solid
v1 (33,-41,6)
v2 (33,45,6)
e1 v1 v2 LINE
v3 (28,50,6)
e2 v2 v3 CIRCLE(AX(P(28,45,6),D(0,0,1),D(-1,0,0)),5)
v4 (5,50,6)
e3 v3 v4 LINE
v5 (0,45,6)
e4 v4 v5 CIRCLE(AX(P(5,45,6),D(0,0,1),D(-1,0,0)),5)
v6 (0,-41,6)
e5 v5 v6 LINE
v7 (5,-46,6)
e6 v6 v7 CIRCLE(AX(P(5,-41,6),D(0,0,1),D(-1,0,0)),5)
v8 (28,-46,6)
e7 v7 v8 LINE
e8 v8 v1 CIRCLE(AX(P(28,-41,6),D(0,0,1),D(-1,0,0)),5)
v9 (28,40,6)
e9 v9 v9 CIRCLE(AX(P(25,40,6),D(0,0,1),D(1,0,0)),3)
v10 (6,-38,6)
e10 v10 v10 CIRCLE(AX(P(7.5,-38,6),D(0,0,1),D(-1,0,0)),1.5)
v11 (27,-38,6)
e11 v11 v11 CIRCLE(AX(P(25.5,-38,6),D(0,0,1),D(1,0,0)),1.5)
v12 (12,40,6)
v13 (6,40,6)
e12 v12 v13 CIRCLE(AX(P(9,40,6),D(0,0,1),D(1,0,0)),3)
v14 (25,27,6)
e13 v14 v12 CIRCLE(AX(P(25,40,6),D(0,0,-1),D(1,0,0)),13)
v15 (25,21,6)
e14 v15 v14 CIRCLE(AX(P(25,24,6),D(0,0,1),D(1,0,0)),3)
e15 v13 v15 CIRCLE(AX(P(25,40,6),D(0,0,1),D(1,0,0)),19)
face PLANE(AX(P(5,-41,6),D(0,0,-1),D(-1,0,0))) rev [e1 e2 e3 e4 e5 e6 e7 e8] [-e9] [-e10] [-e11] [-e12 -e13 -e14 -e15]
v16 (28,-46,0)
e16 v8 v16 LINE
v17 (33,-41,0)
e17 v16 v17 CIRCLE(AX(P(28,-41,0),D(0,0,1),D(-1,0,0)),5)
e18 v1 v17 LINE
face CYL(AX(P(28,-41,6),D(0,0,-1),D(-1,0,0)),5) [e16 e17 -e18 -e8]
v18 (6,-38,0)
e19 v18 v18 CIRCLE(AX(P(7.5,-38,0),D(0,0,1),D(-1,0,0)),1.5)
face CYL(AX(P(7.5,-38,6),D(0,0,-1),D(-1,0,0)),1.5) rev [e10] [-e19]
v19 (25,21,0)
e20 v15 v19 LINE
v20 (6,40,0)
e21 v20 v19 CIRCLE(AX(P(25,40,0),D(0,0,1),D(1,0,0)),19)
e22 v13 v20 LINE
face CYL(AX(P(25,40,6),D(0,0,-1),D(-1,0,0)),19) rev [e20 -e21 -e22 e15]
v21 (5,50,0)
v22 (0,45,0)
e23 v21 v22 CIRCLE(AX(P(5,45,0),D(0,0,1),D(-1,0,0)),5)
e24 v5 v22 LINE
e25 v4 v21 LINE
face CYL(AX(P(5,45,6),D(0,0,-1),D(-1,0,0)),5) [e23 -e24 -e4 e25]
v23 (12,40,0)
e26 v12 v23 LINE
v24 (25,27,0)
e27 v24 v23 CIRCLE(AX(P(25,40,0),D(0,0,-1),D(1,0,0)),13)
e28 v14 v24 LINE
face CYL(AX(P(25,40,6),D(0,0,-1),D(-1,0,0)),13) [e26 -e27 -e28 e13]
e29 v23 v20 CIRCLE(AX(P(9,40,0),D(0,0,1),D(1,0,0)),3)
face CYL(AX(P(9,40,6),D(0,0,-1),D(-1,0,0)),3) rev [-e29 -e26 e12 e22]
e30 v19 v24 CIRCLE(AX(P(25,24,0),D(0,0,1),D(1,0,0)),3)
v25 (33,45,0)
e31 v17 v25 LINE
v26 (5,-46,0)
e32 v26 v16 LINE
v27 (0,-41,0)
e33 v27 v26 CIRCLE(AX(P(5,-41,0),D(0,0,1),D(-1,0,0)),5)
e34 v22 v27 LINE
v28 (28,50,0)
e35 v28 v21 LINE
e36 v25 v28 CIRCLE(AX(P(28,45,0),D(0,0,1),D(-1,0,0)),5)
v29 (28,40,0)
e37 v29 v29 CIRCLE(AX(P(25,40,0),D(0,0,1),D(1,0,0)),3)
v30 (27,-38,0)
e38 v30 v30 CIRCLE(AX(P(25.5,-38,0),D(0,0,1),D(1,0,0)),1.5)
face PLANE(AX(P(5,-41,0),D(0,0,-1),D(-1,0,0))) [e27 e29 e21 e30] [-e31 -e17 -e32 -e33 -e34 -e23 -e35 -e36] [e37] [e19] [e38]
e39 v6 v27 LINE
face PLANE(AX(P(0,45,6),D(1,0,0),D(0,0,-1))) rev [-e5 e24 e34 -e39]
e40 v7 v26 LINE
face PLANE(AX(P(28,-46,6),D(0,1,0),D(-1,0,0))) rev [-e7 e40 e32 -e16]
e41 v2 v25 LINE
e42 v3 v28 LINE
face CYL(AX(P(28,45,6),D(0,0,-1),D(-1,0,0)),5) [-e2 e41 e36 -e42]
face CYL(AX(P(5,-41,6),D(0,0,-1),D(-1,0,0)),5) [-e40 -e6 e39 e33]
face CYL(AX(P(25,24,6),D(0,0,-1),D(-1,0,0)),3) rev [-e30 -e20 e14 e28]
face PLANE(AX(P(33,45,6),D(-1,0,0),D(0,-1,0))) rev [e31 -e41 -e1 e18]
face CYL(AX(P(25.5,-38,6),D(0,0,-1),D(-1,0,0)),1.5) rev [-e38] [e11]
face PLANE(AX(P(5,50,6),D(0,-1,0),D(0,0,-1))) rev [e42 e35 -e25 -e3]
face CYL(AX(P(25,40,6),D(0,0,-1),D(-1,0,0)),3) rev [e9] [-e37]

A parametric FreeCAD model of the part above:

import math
import FreeCAD as App
import Part
import Sketcher
from FreeCAD import Vector
Q = App.Units.Quantity

doc = App.newDocument("Part")
params = doc.addObject("Spreadsheet::Sheet", "Params")
for row, (alias, value) in enumerate([
    ("sketch1_diameter", "3 mm"),
    ("sketch1_diameter2", "6 mm"),
    ("sketch1_radius", "5 mm"),
    ("sketch1_radius2", "13 mm"),
    ("sketch1_width", "23 mm"),
    ("pad1_length", "6 mm"),
], start=1):
    params.set(f"A{row}", alias)
    params.set(f"B{row}", "=" + value)
    params.setAlias(f"B{row}", alias)

body = doc.addObject("PartDesign::Body", "Body")

sketch1 = doc.addObject("Sketcher::SketchObject", "Sketch")
body.addObject(sketch1)
sketch1.AttachmentSupport = (doc.XY_Plane, [""])
sketch1.MapMode = "FlatFace"
sketch1.addGeometry(Part.LineSegment(Vector(28, 50, 0), Vector(5, 50, 0)), False)
sketch1.addGeometry(Part.ArcOfCircle(Part.Circle(Vector(5, 45, 0), Vector(0, 0, 1), 5), math.radians(90), math.radians(180)), False)
sketch1.addGeometry(Part.LineSegment(Vector(0, 45, 0), Vector(0, -41, 0)), False)
sketch1.addGeometry(Part.ArcOfCircle(Part.Circle(Vector(5, -41, 0), Vector(0, 0, 1), 5), math.radians(180), math.radians(270)), False)
sketch1.addGeometry(Part.LineSegment(Vector(5, -46, 0), Vector(28, -46, 0)), False)
sketch1.addGeometry(Part.ArcOfCircle(Part.Circle(Vector(28, -41, 0), Vector(0, 0, 1), 5), math.radians(-90), math.radians(0)), False)
sketch1.addGeometry(Part.LineSegment(Vector(33, -41, 0), Vector(33, 45, 0)), False)
sketch1.addGeometry(Part.ArcOfCircle(Part.Circle(Vector(28, 45, 0), Vector(0, 0, 1), 5), math.radians(0), math.radians(90)), False)
sketch1.addGeometry(Part.Circle(Vector(25.5, -38, 0), Vector(0, 0, 1), 1.5), False)
sketch1.addGeometry(Part.Circle(Vector(7.5, -38, 0), Vector(0, 0, 1), 1.5), False)
sketch1.addGeometry(Part.Circle(Vector(25, 40, 0), Vector(0, 0, 1), 3), False)
sketch1.addGeometry(Part.ArcOfCircle(Part.Circle(Vector(9, 40, 0), Vector(0, 0, 1), 3), math.radians(0), math.radians(180)), False)
sketch1.addGeometry(Part.ArcOfCircle(Part.Circle(Vector(25, 40, 0), Vector(0, 0, 1), 13), math.radians(-180), math.radians(-90)), False)
sketch1.addGeometry(Part.ArcOfCircle(Part.Circle(Vector(25, 24, 0), Vector(0, 0, 1), 3), math.radians(-90), math.radians(90)), False)
sketch1.addGeometry(Part.ArcOfCircle(Part.Circle(Vector(25, 40, 0), Vector(0, 0, 1), 19), math.radians(180), math.radians(270)), False)
sketch1.addConstraint(Sketcher.Constraint("Tangent", 0, 2, 1, 1))
sketch1.addConstraint(Sketcher.Constraint("Tangent", 1, 2, 2, 1))
sketch1.addConstraint(Sketcher.Constraint("Tangent", 2, 2, 3, 1))
sketch1.addConstraint(Sketcher.Constraint("Tangent", 3, 2, 4, 1))
sketch1.addConstraint(Sketcher.Constraint("Tangent", 4, 2, 5, 1))
sketch1.addConstraint(Sketcher.Constraint("Tangent", 5, 2, 6, 1))
sketch1.addConstraint(Sketcher.Constraint("Tangent", 6, 2, 7, 1))
sketch1.addConstraint(Sketcher.Constraint("Tangent", 7, 2, 0, 1))
sketch1.addConstraint(Sketcher.Constraint("Tangent", 11, 1, 12, 1))
sketch1.addConstraint(Sketcher.Constraint("Tangent", 12, 2, 13, 2))
sketch1.addConstraint(Sketcher.Constraint("Tangent", 13, 1, 14, 2))
sketch1.addConstraint(Sketcher.Constraint("Tangent", 14, 1, 11, 2))
sketch1.addConstraint(Sketcher.Constraint("Horizontal", 0))
sketch1.addConstraint(Sketcher.Constraint("Vertical", 2))
sketch1.addConstraint(Sketcher.Constraint("Horizontal", 4))
sketch1.addConstraint(Sketcher.Constraint("Vertical", 6))
sketch1.addConstraint(Sketcher.Constraint("Coincident", 12, 3, 10, 3))
sketch1.addConstraint(Sketcher.Constraint("Coincident", 14, 3, 10, 3))
sketch1.addConstraint(Sketcher.Constraint("Equal", 1, 3))
sketch1.addConstraint(Sketcher.Constraint("Equal", 3, 5))
sketch1.addConstraint(Sketcher.Constraint("Equal", 5, 7))
sketch1.addConstraint(Sketcher.Constraint("Equal", 8, 9))
sketch1.addConstraint(Sketcher.Constraint("Equal", 10, 11))
sketch1.addConstraint(Sketcher.Constraint("PointOnObject", 1, 2, -2))
sketch1.addConstraint(Sketcher.Constraint("Horizontal", 8, 3, 9, 3))
sketch1.addConstraint(Sketcher.Constraint("Horizontal", 10, 3, 11, 3))
sketch1.addConstraint(Sketcher.Constraint("Vertical", 12, 3, 13, 3))
sketch1.addConstraint(Sketcher.Constraint("Diameter", 8, Q("3 mm")))
sketch1.addConstraint(Sketcher.Constraint("Diameter", 10, Q("6 mm")))
sketch1.addConstraint(Sketcher.Constraint("Radius", 1, Q("5 mm")))
sketch1.addConstraint(Sketcher.Constraint("Radius", 12, Q("13 mm")))
sketch1.addConstraint(Sketcher.Constraint("DistanceX", 0, 2, 0, 1, Q("23 mm")))
sketch1.addConstraint(Sketcher.Constraint("DistanceY", 2, 2, 2, 1, Q("86 mm")))
sketch1.addConstraint(Sketcher.Constraint("DistanceY", -1, 1, 1, 3, Q("45 mm")))
sketch1.addConstraint(Sketcher.Constraint("DistanceY", 8, 3, -1, 1, Q("38 mm")))
sketch1.addConstraint(Sketcher.Constraint("DistanceX", -1, 1, 10, 3, Q("25 mm")))
sketch1.addConstraint(Sketcher.Constraint("DistanceY", -1, 1, 10, 3, Q("40 mm")))
sketch1.addConstraint(Sketcher.Constraint("DistanceX", 9, 3, 8, 3, Q("18 mm")))
sketch1.addConstraint(Sketcher.Constraint("DistanceX", -1, 1, 8, 3, Q("25.5 mm")))
sketch1.setExpression("Constraints[27]", "Params.sketch1_diameter")
sketch1.setExpression("Constraints[28]", "Params.sketch1_diameter2")
sketch1.setExpression("Constraints[29]", "Params.sketch1_radius")
sketch1.setExpression("Constraints[30]", "Params.sketch1_radius2")
sketch1.setExpression("Constraints[31]", "Params.sketch1_width")
pad1 = doc.addObject("PartDesign::Pad", "Pad")
body.addObject(pad1)
pad1.Profile = sketch1
pad1.setExpression("Length", "Params.pad1_length")

doc.recompute()
